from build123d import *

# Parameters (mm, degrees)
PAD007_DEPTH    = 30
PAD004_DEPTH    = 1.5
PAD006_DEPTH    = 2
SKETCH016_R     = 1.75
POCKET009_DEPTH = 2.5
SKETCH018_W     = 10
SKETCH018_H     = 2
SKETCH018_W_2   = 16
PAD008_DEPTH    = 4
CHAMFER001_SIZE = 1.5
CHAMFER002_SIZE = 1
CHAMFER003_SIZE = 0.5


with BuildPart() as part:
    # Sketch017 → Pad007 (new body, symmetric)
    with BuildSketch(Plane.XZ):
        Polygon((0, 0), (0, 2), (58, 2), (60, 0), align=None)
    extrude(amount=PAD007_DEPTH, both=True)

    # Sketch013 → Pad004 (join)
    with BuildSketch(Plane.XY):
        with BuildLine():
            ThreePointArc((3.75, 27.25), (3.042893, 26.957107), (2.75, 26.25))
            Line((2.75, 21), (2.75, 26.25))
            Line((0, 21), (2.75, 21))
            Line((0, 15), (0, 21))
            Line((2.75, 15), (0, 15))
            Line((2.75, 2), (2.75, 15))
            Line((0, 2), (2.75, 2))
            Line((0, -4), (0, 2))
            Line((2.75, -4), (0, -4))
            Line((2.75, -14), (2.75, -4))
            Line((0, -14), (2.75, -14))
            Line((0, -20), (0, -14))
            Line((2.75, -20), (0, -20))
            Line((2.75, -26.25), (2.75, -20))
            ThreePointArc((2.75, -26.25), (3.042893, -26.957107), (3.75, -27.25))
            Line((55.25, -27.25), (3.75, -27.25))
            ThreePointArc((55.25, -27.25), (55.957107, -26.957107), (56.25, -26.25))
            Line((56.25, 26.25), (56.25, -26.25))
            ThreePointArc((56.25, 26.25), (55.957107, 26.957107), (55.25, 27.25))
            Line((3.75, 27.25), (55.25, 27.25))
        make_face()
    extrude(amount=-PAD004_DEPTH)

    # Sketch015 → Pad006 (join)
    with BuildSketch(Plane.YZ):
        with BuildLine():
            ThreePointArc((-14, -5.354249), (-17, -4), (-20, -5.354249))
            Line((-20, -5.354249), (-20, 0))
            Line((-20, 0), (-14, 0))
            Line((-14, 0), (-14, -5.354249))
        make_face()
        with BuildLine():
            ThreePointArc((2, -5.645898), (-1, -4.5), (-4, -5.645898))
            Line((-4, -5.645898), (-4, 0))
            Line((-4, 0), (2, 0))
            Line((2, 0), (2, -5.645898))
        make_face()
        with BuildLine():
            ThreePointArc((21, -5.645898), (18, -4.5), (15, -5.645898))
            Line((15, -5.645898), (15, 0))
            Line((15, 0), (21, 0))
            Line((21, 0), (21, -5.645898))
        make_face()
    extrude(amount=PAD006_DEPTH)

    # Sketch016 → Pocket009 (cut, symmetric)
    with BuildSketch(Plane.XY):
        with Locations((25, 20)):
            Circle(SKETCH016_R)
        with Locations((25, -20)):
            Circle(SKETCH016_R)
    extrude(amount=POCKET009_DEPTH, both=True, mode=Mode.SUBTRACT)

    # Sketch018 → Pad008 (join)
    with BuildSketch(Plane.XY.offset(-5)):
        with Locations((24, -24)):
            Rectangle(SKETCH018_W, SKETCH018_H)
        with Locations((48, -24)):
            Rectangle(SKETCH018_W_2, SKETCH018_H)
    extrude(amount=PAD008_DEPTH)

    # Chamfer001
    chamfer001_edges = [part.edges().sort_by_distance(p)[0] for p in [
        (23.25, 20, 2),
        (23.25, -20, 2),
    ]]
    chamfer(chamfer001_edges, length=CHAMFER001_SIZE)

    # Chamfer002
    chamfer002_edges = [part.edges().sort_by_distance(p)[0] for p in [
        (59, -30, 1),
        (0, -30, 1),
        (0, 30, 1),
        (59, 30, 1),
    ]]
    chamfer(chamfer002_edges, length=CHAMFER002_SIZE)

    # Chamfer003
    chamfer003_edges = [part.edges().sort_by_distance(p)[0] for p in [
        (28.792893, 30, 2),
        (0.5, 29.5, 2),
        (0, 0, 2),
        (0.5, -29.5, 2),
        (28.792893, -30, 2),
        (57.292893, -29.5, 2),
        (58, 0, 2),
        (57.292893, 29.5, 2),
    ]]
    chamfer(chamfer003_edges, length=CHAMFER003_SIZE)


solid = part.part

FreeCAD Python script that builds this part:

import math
import FreeCAD as App
import Part
import Sketcher
from FreeCAD import Vector
Q = App.Units.Quantity


def edges_at(feature, points):
    """Names of the edges that pass closest to the given points."""
    edges = feature.Shape.Edges
    near = lambda p: min(range(len(edges)), key=lambda i: edges[i].distToShape(Part.Vertex(*p))[0])
    return sorted({f"Edge{near(p) + 1}" for p in points})

doc = App.newDocument("Part")
body = doc.addObject("PartDesign::Body", "Body")

sketch1 = doc.addObject("Sketcher::SketchObject", "Sketch")
body.addObject(sketch1)
sketch1.AttachmentSupport = (doc.XZ_Plane, [""])
sketch1.MapMode = "FlatFace"
sketch1.addGeometry(Part.LineSegment(Vector(0, 2, 0), Vector(0, 0, 0)), False)
sketch1.addGeometry(Part.LineSegment(Vector(0, 0, 0), Vector(60, 0, 0)), False)
sketch1.addGeometry(Part.LineSegment(Vector(60, 0, 0), Vector(58, 2, 0)), False)
sketch1.addGeometry(Part.LineSegment(Vector(58, 2, 0), Vector(0, 2, 0)), False)
sketch1.addConstraint(Sketcher.Constraint("Coincident", 0, 2, 1, 1))
sketch1.addConstraint(Sketcher.Constraint("Coincident", 1, 2, 2, 1))
sketch1.addConstraint(Sketcher.Constraint("Coincident", 2, 2, 3, 1))
sketch1.addConstraint(Sketcher.Constraint("Coincident", 3, 2, 0, 1))
sketch1.addConstraint(Sketcher.Constraint("Vertical", 0))
sketch1.addConstraint(Sketcher.Constraint("Horizontal", 1))
sketch1.addConstraint(Sketcher.Constraint("Horizontal", 3))
sketch1.addConstraint(Sketcher.Constraint("Coincident", 0, 2, -1, 1))
sketch1.addConstraint(Sketcher.Constraint("DistanceX", 1, 1, 1, 2, Q("60 mm")))
sketch1.addConstraint(Sketcher.Constraint("DistanceX", 3, 2, 3, 1, Q("58 mm")))
sketch1.addConstraint(Sketcher.Constraint("DistanceY", 0, 2, 0, 1, Q("2 mm")))
pad1 = doc.addObject("PartDesign::Pad", "Pad")
body.addObject(pad1)
pad1.Profile = sketch1
pad1.Length = 60
pad1.Midplane = True

sketch2 = doc.addObject("Sketcher::SketchObject", "Sketch001")
body.addObject(sketch2)
sketch2.AttachmentSupport = (doc.XY_Plane, [""])
sketch2.MapMode = "FlatFace"
sketch2.addGeometry(Part.ArcOfCircle(Part.Circle(Vector(3.7, 26.3, 0), Vector(0, 0, 1), 1), math.radians(90), math.radians(180)), False)
sketch2.addGeometry(Part.LineSegment(Vector(2.8, 26.2, 0), Vector(2.8, 21, 0)), False)
sketch2.addGeometry(Part.LineSegment(Vector(2.8, 21, 0), Vector(0, 21, 0)), False)
sketch2.addGeometry(Part.LineSegment(Vector(0, 21, 0), Vector(0, 15, 0)), False)
sketch2.addGeometry(Part.LineSegment(Vector(0, 15, 0), Vector(2.8, 15, 0)), False)
sketch2.addGeometry(Part.LineSegment(Vector(2.8, 15, 0), Vector(2.8, 2, 0)), False)
sketch2.addGeometry(Part.LineSegment(Vector(2.8, 2, 0), Vector(0, 2, 0)), False)
sketch2.addGeometry(Part.LineSegment(Vector(0, 2, 0), Vector(0, -4, 0)), False)
sketch2.addGeometry(Part.LineSegment(Vector(0, -4, 0), Vector(2.8, -4, 0)), False)
sketch2.addGeometry(Part.LineSegment(Vector(2.8, -4, 0), Vector(2.8, -14, 0)), False)
sketch2.addGeometry(Part.LineSegment(Vector(2.8, -14, 0), Vector(0, -14, 0)), False)
sketch2.addGeometry(Part.LineSegment(Vector(0, -14, 0), Vector(0, -20, 0)), False)
sketch2.addGeometry(Part.LineSegment(Vector(0, -20, 0), Vector(2.8, -20, 0)), False)
sketch2.addGeometry(Part.LineSegment(Vector(2.8, -20, 0), Vector(2.8, -26.2, 0)), False)
sketch2.addGeometry(Part.ArcOfCircle(Part.Circle(Vector(3.7, -26.3, 0), Vector(0, 0, 1), 1), math.radians(180), math.radians(270)), False)
sketch2.addGeometry(Part.LineSegment(Vector(3.8, -27.2, 0), Vector(55.2, -27.2, 0)), False)
sketch2.addGeometry(Part.ArcOfCircle(Part.Circle(Vector(55.3, -26.3, 0), Vector(0, 0, 1), 1), math.radians(-90), math.radians(0)), False)
sketch2.addGeometry(Part.LineSegment(Vector(56.2, -26.2, 0), Vector(56.2, 26.2, 0)), False)
sketch2.addGeometry(Part.ArcOfCircle(Part.Circle(Vector(55.3, 26.3, 0), Vector(0, 0, 1), 1), math.radians(0), math.radians(90)), False)
sketch2.addGeometry(Part.LineSegment(Vector(55.2, 27.2, 0), Vector(3.8, 27.2, 0)), False)
sketch2.addConstraint(Sketcher.Constraint("Tangent", 0, 2, 1, 1))
sketch2.addConstraint(Sketcher.Constraint("Coincident", 1, 2, 2, 1))
sketch2.addConstraint(Sketcher.Constraint("Coincident", 2, 2, 3, 1))
sketch2.addConstraint(Sketcher.Constraint("Coincident", 3, 2, 4, 1))
sketch2.addConstraint(Sketcher.Constraint("Coincident", 4, 2, 5, 1))
sketch2.addConstraint(Sketcher.Constraint("Coincident", 5, 2, 6, 1))
sketch2.addConstraint(Sketcher.Constraint("Coincident", 6, 2, 7, 1))
sketch2.addConstraint(Sketcher.Constraint("Coincident", 7, 2, 8, 1))
sketch2.addConstraint(Sketcher.Constraint("Coincident", 8, 2, 9, 1))
sketch2.addConstraint(Sketcher.Constraint("Coincident", 9, 2, 10, 1))
sketch2.addConstraint(Sketcher.Constraint("Coincident", 10, 2, 11, 1))
sketch2.addConstraint(Sketcher.Constraint("Coincident", 11, 2, 12, 1))
sketch2.addConstraint(Sketcher.Constraint("Coincident", 12, 2, 13, 1))
sketch2.addConstraint(Sketcher.Constraint("Tangent", 13, 2, 14, 1))
sketch2.addConstraint(Sketcher.Constraint("Tangent", 14, 2, 15, 1))
sketch2.addConstraint(Sketcher.Constraint("Tangent", 15, 2, 16, 1))
sketch2.addConstraint(Sketcher.Constraint("Tangent", 16, 2, 17, 1))
sketch2.addConstraint(Sketcher.Constraint("Tangent", 17, 2, 18, 1))
sketch2.addConstraint(Sketcher.Constraint("Tangent", 18, 2, 19, 1))
sketch2.addConstraint(Sketcher.Constraint("Tangent", 19, 2, 0, 1))
sketch2.addConstraint(Sketcher.Constraint("Vertical", 1))
sketch2.addConstraint(Sketcher.Constraint("Horizontal", 2))
sketch2.addConstraint(Sketcher.Constraint("Vertical", 3))
sketch2.addConstraint(Sketcher.Constraint("Horizontal", 4))
sketch2.addConstraint(Sketcher.Constraint("Vertical", 5))
sketch2.addConstraint(Sketcher.Constraint("Horizontal", 6))
sketch2.addConstraint(Sketcher.Constraint("Vertical", 7))
sketch2.addConstraint(Sketcher.Constraint("Horizontal", 8))
sketch2.addConstraint(Sketcher.Constraint("Vertical", 9))
sketch2.addConstraint(Sketcher.Constraint("Horizontal", 10))
sketch2.addConstraint(Sketcher.Constraint("Vertical", 11))
sketch2.addConstraint(Sketcher.Constraint("Horizontal", 12))
sketch2.addConstraint(Sketcher.Constraint("Vertical", 13))
sketch2.addConstraint(Sketcher.Constraint("Horizontal", 15))
sketch2.addConstraint(Sketcher.Constraint("Vertical", 17))
sketch2.addConstraint(Sketcher.Constraint("Horizontal", 19))
sketch2.addConstraint(Sketcher.Constraint("Equal", 0, 14))
sketch2.addConstraint(Sketcher.Constraint("Equal", 14, 16))
sketch2.addConstraint(Sketcher.Constraint("Equal", 16, 18))
sketch2.addConstraint(Sketcher.Constraint("Symmetric", 0, 3, 14, 3, -1))
sketch2.addConstraint(Sketcher.Constraint("PointOnObject", 2, 2, -2))
sketch2.addConstraint(Sketcher.Constraint("PointOnObject", 6, 2, -2))
sketch2.addConstraint(Sketcher.Constraint("PointOnObject", 10, 2, -2))
sketch2.addConstraint(Sketcher.Constraint("Vertical", 1, 2, 4, 2))
sketch2.addConstraint(Sketcher.Constraint("Vertical", 5, 2, 8, 2))
sketch2.addConstraint(Sketcher.Constraint("Equal", 3, 7))
sketch2.addConstraint(Sketcher.Constraint("Equal", 7, 11))
sketch2.addConstraint(Sketcher.Constraint("Radius", 0, Q("0.999999 mm")))
sketch2.addConstraint(Sketcher.Constraint("DistanceY", 3, 2, 3, 1, Q("6 mm")))
sketch2.addConstraint(Sketcher.Constraint("DistanceY", 5, 2, 5, 1, Q("13 mm")))
sketch2.addConstraint(Sketcher.Constraint("DistanceY", 9, 2, 9, 1, Q("10 mm")))
sketch2.addConstraint(Sketcher.Constraint("DistanceX", 15, 1, 15, 2, Q("51.5 mm")))
sketch2.addConstraint(Sketcher.Constraint("DistanceY", 17, 1, 17, 2, Q("52.5 mm")))
sketch2.addConstraint(Sketcher.Constraint("DistanceY", -1, 1, 1, 2, Q("21 mm")))
sketch2.addConstraint(Sketcher.Constraint("DistanceX", 2, 2, 2, 1, Q("2.75 mm")))
pad2 = doc.addObject("PartDesign::Pad", "Pad001")
body.addObject(pad2)
pad2.Profile = sketch2
pad2.Length = 1.5
pad2.Reversed = True

sketch3 = doc.addObject("Sketcher::SketchObject", "Sketch002")
body.addObject(sketch3)
sketch3.AttachmentSupport = (doc.YZ_Plane, [""])
sketch3.MapMode = "FlatFace"
sketch3.addGeometry(Part.ArcOfCircle(Part.Circle(Vector(-17, -8, 0), Vector(0, 0, 1), 4), math.radians(41), math.radians(139)), False)
sketch3.addGeometry(Part.LineSegment(Vector(-14, -5.4, 0), Vector(-14, 0, 0)), False)
sketch3.addGeometry(Part.LineSegment(Vector(-14, 0, 0), Vector(-20, 0, 0)), False)
sketch3.addGeometry(Part.LineSegment(Vector(-20, 0, 0), Vector(-20, -5.4, 0)), False)
sketch3.addGeometry(Part.ArcOfCircle(Part.Circle(Vector(-1, -9, 0), Vector(0, 0, 1), 4.5), math.radians(48), math.radians(132)), False)
sketch3.addGeometry(Part.LineSegment(Vector(2, -5.6, 0), Vector(2, 0, 0)), False)
sketch3.addGeometry(Part.LineSegment(Vector(2, 0, 0), Vector(-4, 0, 0)), False)
sketch3.addGeometry(Part.LineSegment(Vector(-4, 0, 0), Vector(-4, -5.6, 0)), False)
sketch3.addGeometry(Part.ArcOfCircle(Part.Circle(Vector(18, -9, 0), Vector(0, 0, 1), 4.5), math.radians(48), math.radians(132)), False)
sketch3.addGeometry(Part.LineSegment(Vector(21, -5.6, 0), Vector(21, 0, 0)), False)
sketch3.addGeometry(Part.LineSegment(Vector(21, 0, 0), Vector(15, 0, 0)), False)
sketch3.addGeometry(Part.LineSegment(Vector(15, 0, 0), Vector(15, -5.6, 0)), False)
sketch3.addConstraint(Sketcher.Constraint("Coincident", 0, 1, 1, 1))
sketch3.addConstraint(Sketcher.Constraint("Coincident", 1, 2, 2, 1))
sketch3.addConstraint(Sketcher.Constraint("Coincident", 2, 2, 3, 1))
sketch3.addConstraint(Sketcher.Constraint("Coincident", 3, 2, 0, 2))
sketch3.addConstraint(Sketcher.Constraint("Coincident", 4, 1, 5, 1))
sketch3.addConstraint(Sketcher.Constraint("Coincident", 5, 2, 6, 1))
sketch3.addConstraint(Sketcher.Constraint("Coincident", 6, 2, 7, 1))
sketch3.addConstraint(Sketcher.Constraint("Coincident", 7, 2, 4, 2))
sketch3.addConstraint(Sketcher.Constraint("Coincident", 8, 1, 9, 1))
sketch3.addConstraint(Sketcher.Constraint("Coincident", 9, 2, 10, 1))
sketch3.addConstraint(Sketcher.Constraint("Coincident", 10, 2, 11, 1))
sketch3.addConstraint(Sketcher.Constraint("Coincident", 11, 2, 8, 2))
sketch3.addConstraint(Sketcher.Constraint("Vertical", 1))
sketch3.addConstraint(Sketcher.Constraint("Horizontal", 2))
sketch3.addConstraint(Sketcher.Constraint("Vertical", 3))
sketch3.addConstraint(Sketcher.Constraint("Vertical", 5))
sketch3.addConstraint(Sketcher.Constraint("Horizontal", 6))
sketch3.addConstraint(Sketcher.Constraint("Vertical", 7))
sketch3.addConstraint(Sketcher.Constraint("Vertical", 9))
sketch3.addConstraint(Sketcher.Constraint("Horizontal", 10))
sketch3.addConstraint(Sketcher.Constraint("Vertical", 11))
sketch3.addConstraint(Sketcher.Constraint("Equal", 4, 8))
sketch3.addConstraint(Sketcher.Constraint("PointOnObject", 1, 2, -1))
sketch3.addConstraint(Sketcher.Constraint("PointOnObject", 5, 2, -1))
sketch3.addConstraint(Sketcher.Constraint("PointOnObject", 9, 2, -1))
sketch3.addConstraint(Sketcher.Constraint("Horizontal", 4, 3, 8, 3))
sketch3.addConstraint(Sketcher.Constraint("Horizontal", 0, 1, 3, 2))
sketch3.addConstraint(Sketcher.Constraint("Horizontal", 4, 1, 7, 2))
sketch3.addConstraint(Sketcher.Constraint("Horizontal", 7, 2, 8, 1))
sketch3.addConstraint(Sketcher.Constraint("Horizontal", 8, 1, 11, 2))
sketch3.addConstraint(Sketcher.Constraint("Equal", 2, 6))
sketch3.addConstraint(Sketcher.Constraint("Radius", 0, Q("3.999999 mm")))
sketch3.addConstraint(Sketcher.Constraint("Radius", 4, Q("4.5 mm")))
sketch3.addConstraint(Sketcher.Constraint("DistanceX", 2, 2, 2, 1, Q("6 mm")))
sketch3.addConstraint(Sketcher.Constraint("DistanceX", 0, 3, -1, 1, Q("17 mm")))
sketch3.addConstraint(Sketcher.Constraint("DistanceY", 0, 3, -1, 1, Q("7.999999 mm")))
sketch3.addConstraint(Sketcher.Constraint("DistanceX", 4, 3, -1, 1, Q("1 mm")))
sketch3.addConstraint(Sketcher.Constraint("DistanceY", 4, 3, -1, 1, Q("9 mm")))
sketch3.addConstraint(Sketcher.Constraint("DistanceX", -1, 1, 8, 3, Q("18 mm")))
pad3 = doc.addObject("PartDesign::Pad", "Pad002")
body.addObject(pad3)
pad3.Profile = sketch3
pad3.Length = 2

sketch4 = doc.addObject("Sketcher::SketchObject", "Sketch003")
body.addObject(sketch4)
sketch4.AttachmentSupport = (doc.XY_Plane, [""])
sketch4.MapMode = "FlatFace"
sketch4.addGeometry(Part.Circle(Vector(25, 20, 0), Vector(0, 0, 1), 1.8), False)
sketch4.addGeometry(Part.Circle(Vector(25, -20, 0), Vector(0, 0, 1), 1.8), False)
sketch4.addConstraint(Sketcher.Constraint("Equal", 0, 1))
sketch4.addConstraint(Sketcher.Constraint("Symmetric", 0, 3, 1, 3, -1))
sketch4.addConstraint(Sketcher.Constraint("Diameter", 0, Q("3.5 mm")))
sketch4.addConstraint(Sketcher.Constraint("DistanceX", -1, 1, 0, 3, Q("25 mm")))
sketch4.addConstraint(Sketcher.Constraint("DistanceY", -1, 1, 0, 3, Q("20 mm")))
pocket1 = doc.addObject("PartDesign::Pocket", "Pocket")
body.addObject(pocket1)
pocket1.Profile = sketch4
pocket1.Length = 5
pocket1.Midplane = True

sketch5 = doc.addObject("Sketcher::SketchObject", "Sketch004")
body.addObject(sketch5)
sketch5.AttachmentSupport = (doc.XY_Plane, [""])
sketch5.MapMode = "FlatFace"
sketch5.AttachmentOffset = App.Placement(Vector(0, 0, -5), App.Rotation())
sketch5.addGeometry(Part.LineSegment(Vector(19, -23, 0), Vector(19, -25, 0)), False)
sketch5.addGeometry(Part.LineSegment(Vector(19, -25, 0), Vector(29, -25, 0)), False)
sketch5.addGeometry(Part.LineSegment(Vector(29, -25, 0), Vector(29, -23, 0)), False)
sketch5.addGeometry(Part.LineSegment(Vector(29, -23, 0), Vector(19, -23, 0)), False)
sketch5.addGeometry(Part.LineSegment(Vector(40, -23, 0), Vector(40, -25, 0)), False)
sketch5.addGeometry(Part.LineSegment(Vector(40, -25, 0), Vector(56, -25, 0)), False)
sketch5.addGeometry(Part.LineSegment(Vector(56, -25, 0), Vector(56, -23, 0)), False)
sketch5.addGeometry(Part.LineSegment(Vector(56, -23, 0), Vector(40, -23, 0)), False)
sketch5.addConstraint(Sketcher.Constraint("Coincident", 0, 2, 1, 1))
sketch5.addConstraint(Sketcher.Constraint("Coincident", 1, 2, 2, 1))
sketch5.addConstraint(Sketcher.Constraint("Coincident", 2, 2, 3, 1))
sketch5.addConstraint(Sketcher.Constraint("Coincident", 3, 2, 0, 1))
sketch5.addConstraint(Sketcher.Constraint("Coincident", 4, 2, 5, 1))
sketch5.addConstraint(Sketcher.Constraint("Coincident", 5, 2, 6, 1))
sketch5.addConstraint(Sketcher.Constraint("Coincident", 6, 2, 7, 1))
sketch5.addConstraint(Sketcher.Constraint("Coincident", 7, 2, 4, 1))
sketch5.addConstraint(Sketcher.Constraint("Vertical", 0))
sketch5.addConstraint(Sketcher.Constraint("Horizontal", 1))
sketch5.addConstraint(Sketcher.Constraint("Vertical", 2))
sketch5.addConstraint(Sketcher.Constraint("Horizontal", 3))
sketch5.addConstraint(Sketcher.Constraint("Vertical", 4))
sketch5.addConstraint(Sketcher.Constraint("Horizontal", 5))
sketch5.addConstraint(Sketcher.Constraint("Vertical", 6))
sketch5.addConstraint(Sketcher.Constraint("Horizontal", 7))
sketch5.addConstraint(Sketcher.Constraint("Horizontal", 1, 2, 4, 2))
sketch5.addConstraint(Sketcher.Constraint("Horizontal", 3, 2, 6, 2))
sketch5.addConstraint(Sketcher.Constraint("DistanceX", 1, 1, 1, 2, Q("10 mm")))
sketch5.addConstraint(Sketcher.Constraint("DistanceX", 5, 1, 5, 2, Q("16 mm")))
sketch5.addConstraint(Sketcher.Constraint("DistanceY", 0, 2, 0, 1, Q("2 mm")))
sketch5.addConstraint(Sketcher.Constraint("DistanceX", -1, 1, 0, 2, Q("19 mm")))
sketch5.addConstraint(Sketcher.Constraint("DistanceY", 0, 2, -1, 1, Q("25 mm")))
sketch5.addConstraint(Sketcher.Constraint("DistanceX", -1, 1, 4, 2, Q("40 mm")))
pad4 = doc.addObject("PartDesign::Pad", "Pad003")
body.addObject(pad4)
pad4.Profile = sketch5
pad4.Length = 4
doc.recompute()

chamfer = doc.addObject("PartDesign::Chamfer", "Chamfer")
body.addObject(chamfer)
chamfer.Base = (pad4, edges_at(pad4, [(23.25, 20, 2), (23.25, -20, 2)]))
chamfer.Size = 1.5
doc.recompute()

chamfer2 = doc.addObject("PartDesign::Chamfer", "Chamfer001")
body.addObject(chamfer2)
chamfer2.Base = (chamfer, edges_at(chamfer, [
    (59, -30, 1),
    (0, -30, 1),
    (0, 30, 1),
    (59, 30, 1),
]))
chamfer2.Size = 1
doc.recompute()

chamfer3 = doc.addObject("PartDesign::Chamfer", "Chamfer002")
body.addObject(chamfer3)
chamfer3.Base = (chamfer2, edges_at(chamfer2, [
    (28.793, 30, 2),
    (0.5, 29.5, 2),
    (0, 0, 2),
    (0.5, -29.5, 2),
    (28.793, -30, 2),
    (57.293, -29.5, 2),
    (58, 0, 2),
    (57.293, 29.5, 2),
]))
chamfer3.Size = 0.5

doc.recompute()
